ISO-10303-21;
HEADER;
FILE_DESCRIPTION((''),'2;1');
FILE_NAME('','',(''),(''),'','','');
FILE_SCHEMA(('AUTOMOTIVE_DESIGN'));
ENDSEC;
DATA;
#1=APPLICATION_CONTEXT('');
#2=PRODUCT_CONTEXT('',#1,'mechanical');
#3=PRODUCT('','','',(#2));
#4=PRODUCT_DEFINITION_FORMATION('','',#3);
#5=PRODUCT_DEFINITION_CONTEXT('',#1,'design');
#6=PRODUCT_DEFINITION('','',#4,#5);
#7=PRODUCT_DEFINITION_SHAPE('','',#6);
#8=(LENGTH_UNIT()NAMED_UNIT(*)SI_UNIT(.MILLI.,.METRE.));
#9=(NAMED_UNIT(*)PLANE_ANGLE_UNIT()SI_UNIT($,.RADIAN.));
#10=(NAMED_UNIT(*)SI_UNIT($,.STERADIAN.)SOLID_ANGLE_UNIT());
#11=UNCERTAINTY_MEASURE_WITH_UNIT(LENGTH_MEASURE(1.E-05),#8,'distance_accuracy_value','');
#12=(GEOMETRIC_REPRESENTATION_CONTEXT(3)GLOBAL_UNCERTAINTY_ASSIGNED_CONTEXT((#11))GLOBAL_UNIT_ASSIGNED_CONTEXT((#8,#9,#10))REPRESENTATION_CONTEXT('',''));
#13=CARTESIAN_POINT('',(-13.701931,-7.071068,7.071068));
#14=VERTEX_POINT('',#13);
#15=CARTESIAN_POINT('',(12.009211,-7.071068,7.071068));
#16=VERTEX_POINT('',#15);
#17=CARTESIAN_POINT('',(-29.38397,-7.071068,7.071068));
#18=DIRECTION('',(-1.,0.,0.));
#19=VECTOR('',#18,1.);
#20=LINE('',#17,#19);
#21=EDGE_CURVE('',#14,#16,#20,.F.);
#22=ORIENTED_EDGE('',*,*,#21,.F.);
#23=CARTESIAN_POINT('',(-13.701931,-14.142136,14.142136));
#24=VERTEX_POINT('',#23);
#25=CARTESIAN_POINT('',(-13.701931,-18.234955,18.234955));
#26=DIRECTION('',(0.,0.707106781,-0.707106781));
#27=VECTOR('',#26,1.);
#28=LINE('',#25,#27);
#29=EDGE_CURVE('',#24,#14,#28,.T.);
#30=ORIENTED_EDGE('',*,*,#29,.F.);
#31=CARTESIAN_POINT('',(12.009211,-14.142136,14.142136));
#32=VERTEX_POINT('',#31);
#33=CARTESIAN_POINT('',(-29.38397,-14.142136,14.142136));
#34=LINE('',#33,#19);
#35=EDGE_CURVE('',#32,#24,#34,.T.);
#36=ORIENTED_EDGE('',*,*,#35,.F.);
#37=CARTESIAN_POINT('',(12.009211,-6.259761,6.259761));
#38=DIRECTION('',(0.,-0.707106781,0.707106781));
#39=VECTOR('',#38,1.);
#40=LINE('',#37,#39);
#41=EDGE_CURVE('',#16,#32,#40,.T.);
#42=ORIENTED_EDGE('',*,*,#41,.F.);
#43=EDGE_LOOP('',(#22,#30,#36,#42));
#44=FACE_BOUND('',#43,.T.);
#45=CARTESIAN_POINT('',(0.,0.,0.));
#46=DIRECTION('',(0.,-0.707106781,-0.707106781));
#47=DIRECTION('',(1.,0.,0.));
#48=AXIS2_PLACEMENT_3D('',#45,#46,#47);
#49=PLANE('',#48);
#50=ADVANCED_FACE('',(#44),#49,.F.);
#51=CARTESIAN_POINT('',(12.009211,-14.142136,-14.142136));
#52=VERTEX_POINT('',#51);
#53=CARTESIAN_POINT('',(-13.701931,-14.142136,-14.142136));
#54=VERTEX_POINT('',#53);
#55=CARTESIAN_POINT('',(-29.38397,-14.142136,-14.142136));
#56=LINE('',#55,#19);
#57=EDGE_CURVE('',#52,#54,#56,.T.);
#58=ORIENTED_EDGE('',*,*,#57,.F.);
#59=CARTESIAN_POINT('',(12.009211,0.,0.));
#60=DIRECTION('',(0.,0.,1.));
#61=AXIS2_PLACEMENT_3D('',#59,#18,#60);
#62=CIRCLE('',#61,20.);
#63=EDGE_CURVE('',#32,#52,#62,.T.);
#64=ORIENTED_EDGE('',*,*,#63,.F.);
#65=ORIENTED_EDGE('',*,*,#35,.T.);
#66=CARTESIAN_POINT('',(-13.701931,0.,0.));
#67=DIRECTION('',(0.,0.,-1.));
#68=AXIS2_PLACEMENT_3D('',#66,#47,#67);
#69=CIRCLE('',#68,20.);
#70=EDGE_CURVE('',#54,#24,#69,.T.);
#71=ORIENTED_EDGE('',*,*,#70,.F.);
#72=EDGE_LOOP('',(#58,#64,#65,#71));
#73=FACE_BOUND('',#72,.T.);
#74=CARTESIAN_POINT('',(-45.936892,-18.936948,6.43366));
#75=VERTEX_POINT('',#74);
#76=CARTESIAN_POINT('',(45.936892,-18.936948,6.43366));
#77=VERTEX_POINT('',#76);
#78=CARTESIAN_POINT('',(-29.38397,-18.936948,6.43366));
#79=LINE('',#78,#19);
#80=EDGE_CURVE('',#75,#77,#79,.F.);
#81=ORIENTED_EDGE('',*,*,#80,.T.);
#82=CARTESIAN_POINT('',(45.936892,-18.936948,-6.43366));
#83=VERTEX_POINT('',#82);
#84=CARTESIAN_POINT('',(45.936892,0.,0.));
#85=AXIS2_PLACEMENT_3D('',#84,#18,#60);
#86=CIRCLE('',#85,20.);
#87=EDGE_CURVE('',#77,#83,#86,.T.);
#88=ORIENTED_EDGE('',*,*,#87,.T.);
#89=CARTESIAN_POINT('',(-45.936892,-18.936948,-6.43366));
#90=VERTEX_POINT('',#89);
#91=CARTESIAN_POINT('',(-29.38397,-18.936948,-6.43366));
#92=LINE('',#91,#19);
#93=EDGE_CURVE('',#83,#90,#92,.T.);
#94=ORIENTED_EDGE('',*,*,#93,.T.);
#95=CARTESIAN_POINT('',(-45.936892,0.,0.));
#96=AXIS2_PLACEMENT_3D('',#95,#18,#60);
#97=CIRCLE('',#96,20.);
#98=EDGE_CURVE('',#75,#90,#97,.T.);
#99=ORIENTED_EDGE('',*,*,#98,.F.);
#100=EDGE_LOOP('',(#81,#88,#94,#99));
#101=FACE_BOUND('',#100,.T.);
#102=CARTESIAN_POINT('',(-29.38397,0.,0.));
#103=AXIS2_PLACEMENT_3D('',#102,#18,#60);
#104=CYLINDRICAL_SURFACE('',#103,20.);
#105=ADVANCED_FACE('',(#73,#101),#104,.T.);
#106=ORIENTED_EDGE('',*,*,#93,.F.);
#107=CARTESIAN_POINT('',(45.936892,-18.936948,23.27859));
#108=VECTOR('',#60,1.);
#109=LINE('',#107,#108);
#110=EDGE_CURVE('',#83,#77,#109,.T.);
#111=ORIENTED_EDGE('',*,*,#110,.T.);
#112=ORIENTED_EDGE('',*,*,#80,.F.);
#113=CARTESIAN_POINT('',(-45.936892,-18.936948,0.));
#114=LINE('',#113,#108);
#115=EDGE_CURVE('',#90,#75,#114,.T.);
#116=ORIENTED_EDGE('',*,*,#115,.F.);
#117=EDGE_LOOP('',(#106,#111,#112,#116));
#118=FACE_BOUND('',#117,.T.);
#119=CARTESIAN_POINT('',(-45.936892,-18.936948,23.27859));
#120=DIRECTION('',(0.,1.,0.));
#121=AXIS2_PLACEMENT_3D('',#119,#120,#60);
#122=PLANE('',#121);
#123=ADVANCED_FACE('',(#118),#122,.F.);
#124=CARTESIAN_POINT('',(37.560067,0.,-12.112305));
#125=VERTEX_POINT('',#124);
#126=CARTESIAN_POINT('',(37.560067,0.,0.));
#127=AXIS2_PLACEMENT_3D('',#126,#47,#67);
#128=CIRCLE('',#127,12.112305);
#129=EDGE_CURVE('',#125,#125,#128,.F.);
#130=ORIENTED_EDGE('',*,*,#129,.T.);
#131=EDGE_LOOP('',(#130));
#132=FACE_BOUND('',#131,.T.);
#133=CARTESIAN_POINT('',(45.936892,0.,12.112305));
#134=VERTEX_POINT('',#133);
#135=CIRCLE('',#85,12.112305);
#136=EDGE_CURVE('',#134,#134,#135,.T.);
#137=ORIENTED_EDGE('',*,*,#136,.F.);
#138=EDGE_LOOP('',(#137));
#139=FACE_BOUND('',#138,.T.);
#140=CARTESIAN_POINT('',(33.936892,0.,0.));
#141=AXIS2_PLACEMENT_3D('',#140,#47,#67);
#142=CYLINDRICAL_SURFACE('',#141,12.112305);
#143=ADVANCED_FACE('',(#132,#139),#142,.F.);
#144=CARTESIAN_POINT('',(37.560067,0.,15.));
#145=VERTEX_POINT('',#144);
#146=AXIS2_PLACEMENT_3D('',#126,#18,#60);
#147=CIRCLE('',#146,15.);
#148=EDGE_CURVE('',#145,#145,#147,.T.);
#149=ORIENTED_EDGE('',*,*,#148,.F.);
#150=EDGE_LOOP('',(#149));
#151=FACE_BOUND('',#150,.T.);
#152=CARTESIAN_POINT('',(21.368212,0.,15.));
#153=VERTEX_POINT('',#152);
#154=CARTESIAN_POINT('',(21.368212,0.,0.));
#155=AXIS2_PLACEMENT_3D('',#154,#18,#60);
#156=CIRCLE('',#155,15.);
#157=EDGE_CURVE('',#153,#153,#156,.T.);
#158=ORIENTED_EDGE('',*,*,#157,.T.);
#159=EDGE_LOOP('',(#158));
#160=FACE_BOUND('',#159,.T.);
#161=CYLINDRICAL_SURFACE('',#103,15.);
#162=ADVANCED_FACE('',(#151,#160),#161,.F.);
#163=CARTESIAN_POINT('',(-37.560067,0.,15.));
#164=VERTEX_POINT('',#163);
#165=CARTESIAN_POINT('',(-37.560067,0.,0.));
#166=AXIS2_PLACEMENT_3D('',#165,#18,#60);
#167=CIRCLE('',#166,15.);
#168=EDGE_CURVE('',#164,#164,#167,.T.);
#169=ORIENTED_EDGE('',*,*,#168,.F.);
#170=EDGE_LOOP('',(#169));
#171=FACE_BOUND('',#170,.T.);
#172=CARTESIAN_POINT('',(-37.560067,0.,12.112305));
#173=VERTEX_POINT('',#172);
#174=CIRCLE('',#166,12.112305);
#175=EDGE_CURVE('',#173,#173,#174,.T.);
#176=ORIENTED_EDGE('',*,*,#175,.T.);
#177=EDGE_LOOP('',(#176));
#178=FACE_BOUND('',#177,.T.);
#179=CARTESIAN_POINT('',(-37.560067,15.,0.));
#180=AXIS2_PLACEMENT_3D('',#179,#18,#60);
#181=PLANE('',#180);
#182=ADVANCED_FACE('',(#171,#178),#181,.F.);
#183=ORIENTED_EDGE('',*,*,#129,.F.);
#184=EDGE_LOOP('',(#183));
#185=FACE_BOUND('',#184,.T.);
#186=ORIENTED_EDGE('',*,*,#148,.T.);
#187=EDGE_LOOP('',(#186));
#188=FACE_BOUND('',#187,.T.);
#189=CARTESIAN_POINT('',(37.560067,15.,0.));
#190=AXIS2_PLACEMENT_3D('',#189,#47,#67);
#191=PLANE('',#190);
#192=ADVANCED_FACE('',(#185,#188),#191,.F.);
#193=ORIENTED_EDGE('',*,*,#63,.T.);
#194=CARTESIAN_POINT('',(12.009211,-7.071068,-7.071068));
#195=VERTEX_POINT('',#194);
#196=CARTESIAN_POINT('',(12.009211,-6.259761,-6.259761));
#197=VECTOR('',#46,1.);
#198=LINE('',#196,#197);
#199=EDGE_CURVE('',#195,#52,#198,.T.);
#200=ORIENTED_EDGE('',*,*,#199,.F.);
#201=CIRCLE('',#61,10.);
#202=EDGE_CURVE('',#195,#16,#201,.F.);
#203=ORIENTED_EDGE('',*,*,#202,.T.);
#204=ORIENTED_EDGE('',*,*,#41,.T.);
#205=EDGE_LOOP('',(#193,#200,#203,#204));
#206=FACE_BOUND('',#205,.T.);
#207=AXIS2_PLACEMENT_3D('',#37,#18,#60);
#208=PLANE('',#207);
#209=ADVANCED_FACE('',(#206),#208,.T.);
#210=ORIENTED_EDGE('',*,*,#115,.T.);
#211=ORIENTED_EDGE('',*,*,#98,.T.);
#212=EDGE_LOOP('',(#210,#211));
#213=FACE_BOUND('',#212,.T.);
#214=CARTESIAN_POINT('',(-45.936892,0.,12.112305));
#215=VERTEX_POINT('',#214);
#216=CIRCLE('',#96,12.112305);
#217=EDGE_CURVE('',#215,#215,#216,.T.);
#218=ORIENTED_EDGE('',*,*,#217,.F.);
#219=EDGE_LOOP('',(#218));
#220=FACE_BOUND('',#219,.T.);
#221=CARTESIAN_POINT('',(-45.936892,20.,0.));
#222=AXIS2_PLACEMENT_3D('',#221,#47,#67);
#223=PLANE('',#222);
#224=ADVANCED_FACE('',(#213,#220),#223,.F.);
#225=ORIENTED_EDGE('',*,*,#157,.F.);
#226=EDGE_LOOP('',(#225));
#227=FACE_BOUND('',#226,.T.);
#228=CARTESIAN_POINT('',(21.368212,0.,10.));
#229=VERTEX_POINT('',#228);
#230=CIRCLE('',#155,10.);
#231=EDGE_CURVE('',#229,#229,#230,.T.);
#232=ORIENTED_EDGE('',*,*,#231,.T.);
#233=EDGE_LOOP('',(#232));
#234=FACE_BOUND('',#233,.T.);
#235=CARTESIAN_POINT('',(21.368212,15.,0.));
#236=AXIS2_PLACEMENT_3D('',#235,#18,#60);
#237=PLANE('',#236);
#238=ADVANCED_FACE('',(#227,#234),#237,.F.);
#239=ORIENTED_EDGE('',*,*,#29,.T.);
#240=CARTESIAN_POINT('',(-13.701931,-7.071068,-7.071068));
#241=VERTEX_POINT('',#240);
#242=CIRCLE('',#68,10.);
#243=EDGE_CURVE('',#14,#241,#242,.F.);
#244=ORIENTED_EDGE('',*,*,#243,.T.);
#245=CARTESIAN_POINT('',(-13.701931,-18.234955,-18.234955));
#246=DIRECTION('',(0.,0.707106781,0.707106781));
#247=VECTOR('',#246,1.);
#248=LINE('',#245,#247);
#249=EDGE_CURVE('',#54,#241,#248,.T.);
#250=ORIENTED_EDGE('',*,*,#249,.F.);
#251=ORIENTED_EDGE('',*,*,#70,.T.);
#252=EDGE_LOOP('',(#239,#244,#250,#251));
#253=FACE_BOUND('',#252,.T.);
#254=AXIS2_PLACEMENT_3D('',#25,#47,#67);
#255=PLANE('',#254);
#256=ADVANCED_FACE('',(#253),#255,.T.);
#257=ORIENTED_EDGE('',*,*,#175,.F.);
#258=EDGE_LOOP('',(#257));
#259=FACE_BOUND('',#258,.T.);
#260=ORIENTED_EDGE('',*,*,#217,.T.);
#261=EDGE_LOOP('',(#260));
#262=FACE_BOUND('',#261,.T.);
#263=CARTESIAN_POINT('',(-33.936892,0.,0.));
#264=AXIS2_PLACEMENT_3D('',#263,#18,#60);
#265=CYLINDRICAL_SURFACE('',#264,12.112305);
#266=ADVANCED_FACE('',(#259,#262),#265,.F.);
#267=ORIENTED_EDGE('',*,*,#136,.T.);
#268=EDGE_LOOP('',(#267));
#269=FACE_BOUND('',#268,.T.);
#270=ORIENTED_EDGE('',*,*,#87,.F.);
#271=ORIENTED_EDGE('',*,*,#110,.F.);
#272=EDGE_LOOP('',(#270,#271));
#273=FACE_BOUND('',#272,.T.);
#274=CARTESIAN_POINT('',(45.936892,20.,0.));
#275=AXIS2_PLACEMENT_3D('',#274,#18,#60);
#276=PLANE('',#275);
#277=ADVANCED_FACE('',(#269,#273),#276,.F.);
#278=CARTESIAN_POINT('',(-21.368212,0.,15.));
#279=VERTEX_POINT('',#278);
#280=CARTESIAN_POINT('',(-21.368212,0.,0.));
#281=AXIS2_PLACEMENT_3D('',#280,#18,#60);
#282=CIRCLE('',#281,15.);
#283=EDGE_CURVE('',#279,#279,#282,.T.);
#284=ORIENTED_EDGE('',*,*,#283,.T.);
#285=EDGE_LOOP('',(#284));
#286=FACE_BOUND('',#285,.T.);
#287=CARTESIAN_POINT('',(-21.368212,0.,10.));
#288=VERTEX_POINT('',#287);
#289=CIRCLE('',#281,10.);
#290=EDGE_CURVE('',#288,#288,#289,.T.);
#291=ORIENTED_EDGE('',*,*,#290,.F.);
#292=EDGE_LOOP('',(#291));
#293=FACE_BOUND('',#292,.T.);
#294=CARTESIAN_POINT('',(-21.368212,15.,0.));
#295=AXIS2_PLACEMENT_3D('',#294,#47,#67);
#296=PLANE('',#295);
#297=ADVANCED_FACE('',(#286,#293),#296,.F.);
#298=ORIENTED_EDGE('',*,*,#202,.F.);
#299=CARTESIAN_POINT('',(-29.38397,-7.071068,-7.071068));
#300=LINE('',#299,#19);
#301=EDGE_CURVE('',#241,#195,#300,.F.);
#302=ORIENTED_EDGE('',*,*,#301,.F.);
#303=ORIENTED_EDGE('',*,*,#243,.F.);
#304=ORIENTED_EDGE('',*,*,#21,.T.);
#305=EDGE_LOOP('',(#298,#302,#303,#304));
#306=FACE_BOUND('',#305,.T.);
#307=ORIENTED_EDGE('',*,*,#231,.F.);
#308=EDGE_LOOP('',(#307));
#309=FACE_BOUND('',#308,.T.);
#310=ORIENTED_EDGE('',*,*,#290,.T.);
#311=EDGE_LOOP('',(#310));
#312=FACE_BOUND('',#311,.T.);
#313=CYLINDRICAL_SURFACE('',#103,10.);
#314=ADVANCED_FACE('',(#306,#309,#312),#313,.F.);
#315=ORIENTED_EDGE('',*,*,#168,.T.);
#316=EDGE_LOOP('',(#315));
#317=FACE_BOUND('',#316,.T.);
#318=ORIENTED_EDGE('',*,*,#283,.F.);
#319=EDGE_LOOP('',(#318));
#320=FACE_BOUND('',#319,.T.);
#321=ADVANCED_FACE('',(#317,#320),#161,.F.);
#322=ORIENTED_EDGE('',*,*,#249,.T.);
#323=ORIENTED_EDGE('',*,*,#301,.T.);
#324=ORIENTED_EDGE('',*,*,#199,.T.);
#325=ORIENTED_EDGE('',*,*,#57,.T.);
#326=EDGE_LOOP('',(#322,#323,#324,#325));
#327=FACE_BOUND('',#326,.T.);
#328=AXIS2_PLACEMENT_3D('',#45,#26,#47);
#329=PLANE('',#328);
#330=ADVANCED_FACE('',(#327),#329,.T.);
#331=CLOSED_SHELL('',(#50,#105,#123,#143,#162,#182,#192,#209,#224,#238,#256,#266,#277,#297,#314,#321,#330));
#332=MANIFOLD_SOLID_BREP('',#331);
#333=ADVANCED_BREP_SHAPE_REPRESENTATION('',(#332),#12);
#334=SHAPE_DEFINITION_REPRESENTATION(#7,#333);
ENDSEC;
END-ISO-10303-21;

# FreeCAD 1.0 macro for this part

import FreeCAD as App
import Part
import Sketcher
Q = App.Units.Quantity


def add_polygon(sketch, points):
    """Adds a closed chain of lines whose ends are joined by coincident constraints."""
    first, n = sketch.GeometryCount, len(points)
    for a, b in zip(points, points[1:] + points[:1]):
        sketch.addGeometry(Part.LineSegment(App.Vector(*a, 0), App.Vector(*b, 0)), False)
    for i in range(n):
        sketch.addConstraint(Sketcher.Constraint("Coincident", first + i, 2, first + (i + 1) % n, 1))

doc = App.newDocument("Part")
body = doc.addObject("PartDesign::Body", "Body")

sketch1 = body.newObject("Sketcher::SketchObject", "Sketch")
sketch1.AttachmentSupport = (doc.getObject("XY_Plane"), [""])
sketch1.MapMode = "FlatFace"
add_polygon(sketch1, [(-21.368212, 15), (-21.368212, 10), (21.368212, 10), (21.368212, 15), (37.560067, 15), (37.560067, 10), (45.936892, 10), (45.936892, 20), (-45.936892, 20), (-45.936892, 10), (-37.560067, 10), (-37.560067, 15)])
sketch1.addConstraint([
    Sketcher.Constraint("Vertical", 0),
    Sketcher.Constraint("Horizontal", 1),
    Sketcher.Constraint("Vertical", 2),
    Sketcher.Constraint("Horizontal", 3),
    Sketcher.Constraint("Vertical", 4),
    Sketcher.Constraint("Horizontal", 5),
    Sketcher.Constraint("Vertical", 6),
    Sketcher.Constraint("Horizontal", 7),
    Sketcher.Constraint("Vertical", 8),
    Sketcher.Constraint("Horizontal", 9),
    Sketcher.Constraint("Vertical", 10),
    Sketcher.Constraint("Horizontal", 11),
    Sketcher.Constraint("Symmetric", 5, 2, 8, 2, -2),
    Sketcher.Constraint("Symmetric", 3, 2, 10, 2, -2),
    Sketcher.Constraint("Horizontal", 1, 2, 4, 2),
    Sketcher.Constraint("Equal", 3, 11),
    Sketcher.Constraint("DistanceY", 0, 2, 0, 1, Q("5 mm")),
    Sketcher.Constraint("DistanceY", 6, 1, 6, 2, Q("10 mm")),
    Sketcher.Constraint("DistanceY", -1, 1, 0, 2, Q("10 mm")),
    Sketcher.Constraint("DistanceX", 1, 1, 1, 2, Q("42.736424 mm")),
    Sketcher.Constraint("DistanceX", 3, 1, 3, 2, Q("16.191855 mm")),
    Sketcher.Constraint("DistanceX", 5, 1, 5, 2, Q("8.376825 mm")),
])
revolution = body.newObject("PartDesign::Revolution", "Revolution")
revolution.Profile = sketch1
revolution.ReferenceAxis = (sketch1, ["H_Axis"])
revolution.Angle = 360

sketch2 = body.newObject("Sketcher::SketchObject", "Sketch001")
sketch2.AttachmentSupport = (doc.getObject("XY_Plane"), [""])
sketch2.MapMode = "FlatFace"
add_polygon(sketch2, [(-13.701931, 25.788121), (-13.701931, 8.852638), (12.009211, 8.852638), (12.009211, 25.788121)])
sketch2.addConstraint([
    Sketcher.Constraint("Vertical", 0),
    Sketcher.Constraint("Horizontal", 1),
    Sketcher.Constraint("Vertical", 2),
    Sketcher.Constraint("Horizontal", 3),
    Sketcher.Constraint("DistanceX", 1, 1, 1, 2, Q("25.711141 mm")),
    Sketcher.Constraint("DistanceY", 0, 2, 0, 1, Q("16.935482 mm")),
    Sketcher.Constraint("DistanceX", 0, 2, -1, 1, Q("13.701931 mm")),
    Sketcher.Constraint("DistanceY", -1, 1, 0, 2, Q("8.852638 mm")),
])
groove = body.newObject("PartDesign::Groove", "Groove")
groove.Profile = sketch2
groove.ReferenceAxis = (sketch2, ["H_Axis"])
groove.Angle = 135

sketch3 = body.newObject("Sketcher::SketchObject", "Sketch002")
sketch3.AttachmentSupport = (doc.getObject("XY_Plane"), [""])
sketch3.MapMode = "FlatFace"
add_polygon(sketch3, [(-13.701931, 25.788121), (-13.701931, 8.852638), (12.009211, 8.852638), (12.009211, 25.788121)])
sketch3.addConstraint([
    Sketcher.Constraint("Vertical", 0),
    Sketcher.Constraint("Horizontal", 1),
    Sketcher.Constraint("Vertical", 2),
    Sketcher.Constraint("Horizontal", 3),
    Sketcher.Constraint("DistanceX", 1, 1, 1, 2, Q("25.711141 mm")),
    Sketcher.Constraint("DistanceY", 0, 2, 0, 1, Q("16.935482 mm")),
    Sketcher.Constraint("DistanceX", 0, 2, -1, 1, Q("13.701931 mm")),
    Sketcher.Constraint("DistanceY", -1, 1, 0, 2, Q("8.852638 mm")),
])
groove2 = body.newObject("PartDesign::Groove", "Groove001")
groove2.Profile = sketch3
groove2.ReferenceAxis = (sketch3, ["H_Axis"])
groove2.Angle = 135
groove2.Reversed = True

sketch4 = body.newObject("Sketcher::SketchObject", "Sketch003")
sketch4.AttachmentSupport = (doc.getObject("YZ_Plane"), [""])
sketch4.MapMode = "FlatFace"
sketch4.AttachmentOffset = App.Placement(App.Vector(0, 0, -45.936892), App.Rotation())
sketch4.addGeometry(Part.Circle(App.Vector(0, 0, 0), App.Vector(0, 0, 1), 12.112305), False)
sketch4.addConstraint([
    Sketcher.Constraint("Coincident", 0, 3, -1, 1),
    Sketcher.Constraint("Diameter", 0, Q("24.224611 mm")),
])
pocket1 = body.newObject("PartDesign::Pocket", "Pocket")
pocket1.Profile = sketch4
pocket1.Length = 12
pocket1.Reversed = True
doc.recompute()

mirrored = body.newObject("PartDesign::Mirrored", "Mirrored")
mirrored.Originals = [pocket1]
mirrored.MirrorPlane = (doc.getObject("YZ_Plane"), [""])
body.Tip = mirrored

sketch5 = body.newObject("Sketcher::SketchObject", "Sketch004")
sketch5.AttachmentSupport = (doc.getObject("YZ_Plane"), [""])
sketch5.MapMode = "FlatFace"
add_polygon(sketch5, [(-18.936948, -32.516126), (-18.936948, 23.27859), (-46.464805, 2.217009)])
sketch5.addConstraint([
    Sketcher.Constraint("Vertical", 0),
    Sketcher.Constraint("Distance", 1, Q("34.66083 mm")),
    Sketcher.Constraint("DistanceY", 0, 1, 0, 2, Q("55.794716 mm")),
    Sketcher.Constraint("DistanceX", 0, 2, -1, 1, Q("18.936948 mm")),
    Sketcher.Constraint("DistanceY", -1, 1, 0, 2, Q("23.27859 mm")),
    Sketcher.Constraint("DistanceY", -1, 1, 1, 2, Q("2.217009 mm")),
])
pocket2 = body.newObject("PartDesign::Pocket", "Pocket001")
pocket2.Profile = sketch5
pocket2.Type = "ThroughAll"
pocket2.Midplane = True

doc.recompute()
